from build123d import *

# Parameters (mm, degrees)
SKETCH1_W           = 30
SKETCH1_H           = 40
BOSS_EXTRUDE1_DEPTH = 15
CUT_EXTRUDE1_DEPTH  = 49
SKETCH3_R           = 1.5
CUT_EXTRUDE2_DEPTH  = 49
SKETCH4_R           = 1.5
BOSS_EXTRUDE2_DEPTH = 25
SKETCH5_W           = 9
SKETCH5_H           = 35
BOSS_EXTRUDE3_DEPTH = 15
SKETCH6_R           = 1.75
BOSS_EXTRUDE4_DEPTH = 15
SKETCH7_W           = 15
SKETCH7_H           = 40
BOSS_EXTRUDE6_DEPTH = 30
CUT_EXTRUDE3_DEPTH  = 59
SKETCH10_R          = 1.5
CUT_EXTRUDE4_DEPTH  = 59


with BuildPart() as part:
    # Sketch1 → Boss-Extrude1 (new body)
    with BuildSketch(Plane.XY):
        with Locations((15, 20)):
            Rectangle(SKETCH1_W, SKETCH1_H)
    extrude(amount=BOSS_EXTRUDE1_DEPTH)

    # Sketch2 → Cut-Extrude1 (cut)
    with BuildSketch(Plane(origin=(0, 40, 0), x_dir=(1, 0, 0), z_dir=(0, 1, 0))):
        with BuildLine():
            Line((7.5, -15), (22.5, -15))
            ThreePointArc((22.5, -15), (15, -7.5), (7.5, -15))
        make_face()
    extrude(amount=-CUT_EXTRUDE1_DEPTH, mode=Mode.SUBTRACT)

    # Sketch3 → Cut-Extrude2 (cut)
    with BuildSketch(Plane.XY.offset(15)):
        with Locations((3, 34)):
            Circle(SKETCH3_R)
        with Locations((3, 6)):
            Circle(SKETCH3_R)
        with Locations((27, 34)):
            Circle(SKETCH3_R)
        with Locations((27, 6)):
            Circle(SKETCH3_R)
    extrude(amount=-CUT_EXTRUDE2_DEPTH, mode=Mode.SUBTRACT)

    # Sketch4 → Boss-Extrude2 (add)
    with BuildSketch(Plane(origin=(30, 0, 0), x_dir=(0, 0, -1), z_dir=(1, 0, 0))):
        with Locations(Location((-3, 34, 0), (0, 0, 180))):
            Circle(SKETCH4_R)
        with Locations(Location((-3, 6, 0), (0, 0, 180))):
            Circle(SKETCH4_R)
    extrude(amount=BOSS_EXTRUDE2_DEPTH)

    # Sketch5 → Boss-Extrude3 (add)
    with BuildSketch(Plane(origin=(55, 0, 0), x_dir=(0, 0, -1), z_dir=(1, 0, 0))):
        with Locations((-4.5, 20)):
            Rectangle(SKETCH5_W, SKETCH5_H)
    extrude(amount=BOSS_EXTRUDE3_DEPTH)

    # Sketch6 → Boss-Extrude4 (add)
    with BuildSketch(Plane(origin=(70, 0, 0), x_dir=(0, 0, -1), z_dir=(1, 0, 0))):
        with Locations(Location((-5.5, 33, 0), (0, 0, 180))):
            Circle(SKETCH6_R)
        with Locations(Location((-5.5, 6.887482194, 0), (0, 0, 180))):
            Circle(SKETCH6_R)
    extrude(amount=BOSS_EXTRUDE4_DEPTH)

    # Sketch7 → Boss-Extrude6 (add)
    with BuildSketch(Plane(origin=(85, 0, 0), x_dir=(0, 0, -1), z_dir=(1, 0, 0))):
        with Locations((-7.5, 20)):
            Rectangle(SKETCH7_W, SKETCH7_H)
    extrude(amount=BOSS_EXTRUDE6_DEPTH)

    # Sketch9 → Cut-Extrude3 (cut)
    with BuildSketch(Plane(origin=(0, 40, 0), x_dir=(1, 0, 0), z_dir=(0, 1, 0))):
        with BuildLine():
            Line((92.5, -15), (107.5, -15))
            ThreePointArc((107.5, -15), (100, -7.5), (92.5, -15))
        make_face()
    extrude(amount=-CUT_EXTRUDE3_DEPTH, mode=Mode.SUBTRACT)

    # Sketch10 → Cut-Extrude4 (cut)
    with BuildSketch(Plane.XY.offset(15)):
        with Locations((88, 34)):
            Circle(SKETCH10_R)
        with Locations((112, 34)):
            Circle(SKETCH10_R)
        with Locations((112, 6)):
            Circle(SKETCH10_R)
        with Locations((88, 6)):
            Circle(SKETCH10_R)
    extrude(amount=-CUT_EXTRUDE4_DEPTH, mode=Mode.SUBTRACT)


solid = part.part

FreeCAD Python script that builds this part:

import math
import FreeCAD as App
import Part
import Sketcher
Q = App.Units.Quantity

doc = App.newDocument("Part")
body = doc.addObject("PartDesign::Body", "Body")

sketch1 = body.newObject("Sketcher::SketchObject", "Sketch")
sketch1.AttachmentSupport = (doc.getObject("XY_Plane"), [""])
sketch1.MapMode = "FlatFace"
sketch1.addGeometry([
    Part.LineSegment(App.Vector(0, 40, 0), App.Vector(0, 0, 0)),
    Part.LineSegment(App.Vector(0, 0, 0), App.Vector(30, 0, 0)),
    Part.LineSegment(App.Vector(30, 0, 0), App.Vector(30, 40, 0)),
    Part.LineSegment(App.Vector(30, 40, 0), App.Vector(0, 40, 0)),
], False)
sketch1.addConstraint([
    Sketcher.Constraint("Coincident", 0, 2, 1, 1),
    Sketcher.Constraint("Coincident", 1, 2, 2, 1),
    Sketcher.Constraint("Coincident", 2, 2, 3, 1),
    Sketcher.Constraint("Coincident", 3, 2, 0, 1),
    Sketcher.Constraint("Vertical", 0),
    Sketcher.Constraint("Horizontal", 1),
    Sketcher.Constraint("Vertical", 2),
    Sketcher.Constraint("Horizontal", 3),
    Sketcher.Constraint("Coincident", 0, 2, -1, 1),
    Sketcher.Constraint("DistanceX", 1, 1, 1, 2, Q("30 mm")),
    Sketcher.Constraint("DistanceY", 0, 2, 0, 1, Q("40 mm")),
])
pad1 = body.newObject("PartDesign::Pad", "Pad")
pad1.Profile = sketch1
pad1.Length = 15

sketch2 = body.newObject("Sketcher::SketchObject", "Sketch001")
sketch2.AttachmentSupport = (doc.getObject("XZ_Plane"), [""])
sketch2.MapMode = "FlatFace"
sketch2.AttachmentOffset = App.Placement(App.Vector(0, 0, -40), App.Rotation())
sketch2.addGeometry([
    Part.LineSegment(App.Vector(8, 15, 0), App.Vector(22, 15, 0)),
    Part.ArcOfCircle(Part.Circle(App.Vector(15, 15, 0), App.Vector(0, 0, 1), 8), math.radians(180), math.radians(360)),
], False)
sketch2.addConstraint([
    Sketcher.Constraint("Coincident", 0, 1, 1, 1),
    Sketcher.Constraint("Coincident", 1, 2, 0, 2),
    Sketcher.Constraint("Horizontal", 0),
    Sketcher.Constraint("Horizontal", 1, 3, 0, 1),
    Sketcher.Constraint("Radius", 1, Q("7.5 mm")),
    Sketcher.Constraint("DistanceX", -1, 1, 1, 3, Q("15 mm")),
    Sketcher.Constraint("DistanceY", -1, 1, 1, 3, Q("15 mm")),
])
pocket1 = body.newObject("PartDesign::Pocket", "Pocket")
pocket1.Profile = sketch2
pocket1.Length = 49
pocket1.Reversed = True

sketch3 = body.newObject("Sketcher::SketchObject", "Sketch002")
sketch3.AttachmentSupport = (doc.getObject("XY_Plane"), [""])
sketch3.MapMode = "FlatFace"
sketch3.AttachmentOffset = App.Placement(App.Vector(0, 0, 15), App.Rotation())
sketch3.addGeometry([
    Part.Circle(App.Vector(3, 34, 0), App.Vector(0, 0, 1), 1.5),
    Part.Circle(App.Vector(3, 6, 0), App.Vector(0, 0, 1), 1.5),
    Part.Circle(App.Vector(27, 34, 0), App.Vector(0, 0, 1), 1.5),
    Part.Circle(App.Vector(27, 6, 0), App.Vector(0, 0, 1), 1.5),
], False)
sketch3.addConstraint([
    Sketcher.Constraint("Equal", 0, 1),
    Sketcher.Constraint("Equal", 1, 2),
    Sketcher.Constraint("Equal", 2, 3),
    Sketcher.Constraint("Horizontal", 0, 3, 2, 3),
    Sketcher.Constraint("Horizontal", 1, 3, 3, 3),
    Sketcher.Constraint("Vertical", 0, 3, 1, 3),
    Sketcher.Constraint("Vertical", 2, 3, 3, 3),
    Sketcher.Constraint("Diameter", 0, Q("3 mm")),
    Sketcher.Constraint("DistanceX", -1, 1, 0, 3, Q("3 mm")),
    Sketcher.Constraint("DistanceY", -1, 1, 0, 3, Q("34 mm")),
    Sketcher.Constraint("DistanceY", -1, 1, 1, 3, Q("6 mm")),
    Sketcher.Constraint("DistanceX", -1, 1, 2, 3, Q("27 mm")),
])
pocket2 = body.newObject("PartDesign::Pocket", "Pocket001")
pocket2.Profile = sketch3
pocket2.Length = 49

sketch4 = body.newObject("Sketcher::SketchObject", "Sketch003")
sketch4.AttachmentSupport = (doc.getObject("YZ_Plane"), [""])
sketch4.MapMode = "FlatFace"
sketch4.AttachmentOffset = App.Placement(App.Vector(0, 0, 30), App.Rotation())
sketch4.addGeometry([
    Part.Circle(App.Vector(34, 3, 0), App.Vector(0, 0, 1), 1.5),
    Part.Circle(App.Vector(6, 3, 0), App.Vector(0, 0, 1), 1.5),
], False)
sketch4.addConstraint([
    Sketcher.Constraint("Equal", 0, 1),
    Sketcher.Constraint("Horizontal", 0, 3, 1, 3),
    Sketcher.Constraint("Diameter", 0, Q("3 mm")),
    Sketcher.Constraint("DistanceX", -1, 1, 0, 3, Q("34 mm")),
    Sketcher.Constraint("DistanceY", -1, 1, 0, 3, Q("3 mm")),
    Sketcher.Constraint("DistanceX", -1, 1, 1, 3, Q("6 mm")),
])
pad2 = body.newObject("PartDesign::Pad", "Pad001")
pad2.Profile = sketch4
pad2.Length = 25

sketch5 = body.newObject("Sketcher::SketchObject", "Sketch004")
sketch5.AttachmentSupport = (doc.getObject("YZ_Plane"), [""])
sketch5.MapMode = "FlatFace"
sketch5.AttachmentOffset = App.Placement(App.Vector(0, 0, 55), App.Rotation())
sketch5.addGeometry([
    Part.LineSegment(App.Vector(38, 9, 0), App.Vector(2, 9, 0)),
    Part.LineSegment(App.Vector(2, 9, 0), App.Vector(2, 0, 0)),
    Part.LineSegment(App.Vector(2, 0, 0), App.Vector(38, 0, 0)),
    Part.LineSegment(App.Vector(38, 0, 0), App.Vector(38, 9, 0)),
], False)
sketch5.addConstraint([
    Sketcher.Constraint("Coincident", 0, 2, 1, 1),
    Sketcher.Constraint("Coincident", 1, 2, 2, 1),
    Sketcher.Constraint("Coincident", 2, 2, 3, 1),
    Sketcher.Constraint("Coincident", 3, 2, 0, 1),
    Sketcher.Constraint("Horizontal", 0),
    Sketcher.Constraint("Vertical", 1),
    Sketcher.Constraint("Horizontal", 2),
    Sketcher.Constraint("Vertical", 3),
    Sketcher.Constraint("PointOnObject", 1, 2, -1),
    Sketcher.Constraint("DistanceX", 0, 2, 0, 1, Q("35 mm")),
    Sketcher.Constraint("DistanceY", 1, 2, 1, 1, Q("9 mm")),
    Sketcher.Constraint("DistanceX", -1, 1, 0, 2, Q("2.5 mm")),
])
pad3 = body.newObject("PartDesign::Pad", "Pad002")
pad3.Profile = sketch5
pad3.Length = 15

sketch6 = body.newObject("Sketcher::SketchObject", "Sketch005")
sketch6.AttachmentSupport = (doc.getObject("YZ_Plane"), [""])
sketch6.MapMode = "FlatFace"
sketch6.AttachmentOffset = App.Placement(App.Vector(0, 0, 70), App.Rotation())
sketch6.addGeometry([
    Part.Circle(App.Vector(33, 5.5, 0), App.Vector(0, 0, 1), 1.8),
    Part.Circle(App.Vector(6.9, 5.5, 0), App.Vector(0, 0, 1), 1.8),
], False)
sketch6.addConstraint([
    Sketcher.Constraint("Equal", 0, 1),
    Sketcher.Constraint("Horizontal", 0, 3, 1, 3),
    Sketcher.Constraint("Diameter", 0, Q("3.5 mm")),
    Sketcher.Constraint("DistanceX", -1, 1, 0, 3, Q("33 mm")),
    Sketcher.Constraint("DistanceY", -1, 1, 0, 3, Q("5.5 mm")),
    Sketcher.Constraint("DistanceX", -1, 1, 1, 3, Q("6.887482 mm")),
])
pad4 = body.newObject("PartDesign::Pad", "Pad003")
pad4.Profile = sketch6
pad4.Length = 15

sketch7 = body.newObject("Sketcher::SketchObject", "Sketch006")
sketch7.AttachmentSupport = (doc.getObject("YZ_Plane"), [""])
sketch7.MapMode = "FlatFace"
sketch7.AttachmentOffset = App.Placement(App.Vector(0, 0, 85), App.Rotation())
sketch7.addGeometry([
    Part.LineSegment(App.Vector(40, 15, 0), App.Vector(0, 15, 0)),
    Part.LineSegment(App.Vector(0, 15, 0), App.Vector(0, 0, 0)),
    Part.LineSegment(App.Vector(0, 0, 0), App.Vector(40, 0, 0)),
    Part.LineSegment(App.Vector(40, 0, 0), App.Vector(40, 15, 0)),
], False)
sketch7.addConstraint([
    Sketcher.Constraint("Coincident", 0, 2, 1, 1),
    Sketcher.Constraint("Coincident", 1, 2, 2, 1),
    Sketcher.Constraint("Coincident", 2, 2, 3, 1),
    Sketcher.Constraint("Coincident", 3, 2, 0, 1),
    Sketcher.Constraint("Horizontal", 0),
    Sketcher.Constraint("Vertical", 1),
    Sketcher.Constraint("Horizontal", 2),
    Sketcher.Constraint("Vertical", 3),
    Sketcher.Constraint("Coincident", 1, 2, -1, 1),
    Sketcher.Constraint("DistanceX", 0, 2, 0, 1, Q("40 mm")),
    Sketcher.Constraint("DistanceY", 1, 2, 1, 1, Q("15 mm")),
])
pad5 = body.newObject("PartDesign::Pad", "Pad004")
pad5.Profile = sketch7
pad5.Length = 30

sketch8 = body.newObject("Sketcher::SketchObject", "Sketch007")
sketch8.AttachmentSupport = (doc.getObject("XZ_Plane"), [""])
sketch8.MapMode = "FlatFace"
sketch8.AttachmentOffset = App.Placement(App.Vector(0, 0, -40), App.Rotation())
sketch8.addGeometry([
    Part.LineSegment(App.Vector(92, 15, 0), App.Vector(108, 15, 0)),
    Part.ArcOfCircle(Part.Circle(App.Vector(100, 15, 0), App.Vector(0, 0, 1), 8), math.radians(180), math.radians(360)),
], False)
sketch8.addConstraint([
    Sketcher.Constraint("Coincident", 0, 1, 1, 1),
    Sketcher.Constraint("Coincident", 1, 2, 0, 2),
    Sketcher.Constraint("Horizontal", 0),
    Sketcher.Constraint("Horizontal", 1, 3, 0, 1),
    Sketcher.Constraint("Radius", 1, Q("7.5 mm")),
    Sketcher.Constraint("DistanceX", -1, 1, 1, 3, Q("100 mm")),
    Sketcher.Constraint("DistanceY", -1, 1, 1, 3, Q("15 mm")),
])
pocket3 = body.newObject("PartDesign::Pocket", "Pocket002")
pocket3.Profile = sketch8
pocket3.Length = 59
pocket3.Reversed = True

sketch9 = body.newObject("Sketcher::SketchObject", "Sketch008")
sketch9.AttachmentSupport = (doc.getObject("XY_Plane"), [""])
sketch9.MapMode = "FlatFace"
sketch9.AttachmentOffset = App.Placement(App.Vector(0, 0, 15), App.Rotation())
sketch9.addGeometry([
    Part.Circle(App.Vector(88, 34, 0), App.Vector(0, 0, 1), 1.5),
    Part.Circle(App.Vector(112, 34, 0), App.Vector(0, 0, 1), 1.5),
    Part.Circle(App.Vector(112, 6, 0), App.Vector(0, 0, 1), 1.5),
    Part.Circle(App.Vector(88, 6, 0), App.Vector(0, 0, 1), 1.5),
], False)
sketch9.addConstraint([
    Sketcher.Constraint("Equal", 0, 1),
    Sketcher.Constraint("Equal", 1, 2),
    Sketcher.Constraint("Equal", 2, 3),
    Sketcher.Constraint("Horizontal", 0, 3, 1, 3),
    Sketcher.Constraint("Horizontal", 2, 3, 3, 3),
    Sketcher.Constraint("Vertical", 1, 3, 2, 3),
    Sketcher.Constraint("Vertical", 0, 3, 3, 3),
    Sketcher.Constraint("Diameter", 0, Q("3 mm")),
    Sketcher.Constraint("DistanceX", -1, 1, 0, 3, Q("88 mm")),
    Sketcher.Constraint("DistanceY", -1, 1, 0, 3, Q("34 mm")),
    Sketcher.Constraint("DistanceX", -1, 1, 1, 3, Q("112 mm")),
    Sketcher.Constraint("DistanceY", -1, 1, 2, 3, Q("6 mm")),
])
pocket4 = body.newObject("PartDesign::Pocket", "Pocket003")
pocket4.Profile = sketch9
pocket4.Length = 59

doc.recompute()
